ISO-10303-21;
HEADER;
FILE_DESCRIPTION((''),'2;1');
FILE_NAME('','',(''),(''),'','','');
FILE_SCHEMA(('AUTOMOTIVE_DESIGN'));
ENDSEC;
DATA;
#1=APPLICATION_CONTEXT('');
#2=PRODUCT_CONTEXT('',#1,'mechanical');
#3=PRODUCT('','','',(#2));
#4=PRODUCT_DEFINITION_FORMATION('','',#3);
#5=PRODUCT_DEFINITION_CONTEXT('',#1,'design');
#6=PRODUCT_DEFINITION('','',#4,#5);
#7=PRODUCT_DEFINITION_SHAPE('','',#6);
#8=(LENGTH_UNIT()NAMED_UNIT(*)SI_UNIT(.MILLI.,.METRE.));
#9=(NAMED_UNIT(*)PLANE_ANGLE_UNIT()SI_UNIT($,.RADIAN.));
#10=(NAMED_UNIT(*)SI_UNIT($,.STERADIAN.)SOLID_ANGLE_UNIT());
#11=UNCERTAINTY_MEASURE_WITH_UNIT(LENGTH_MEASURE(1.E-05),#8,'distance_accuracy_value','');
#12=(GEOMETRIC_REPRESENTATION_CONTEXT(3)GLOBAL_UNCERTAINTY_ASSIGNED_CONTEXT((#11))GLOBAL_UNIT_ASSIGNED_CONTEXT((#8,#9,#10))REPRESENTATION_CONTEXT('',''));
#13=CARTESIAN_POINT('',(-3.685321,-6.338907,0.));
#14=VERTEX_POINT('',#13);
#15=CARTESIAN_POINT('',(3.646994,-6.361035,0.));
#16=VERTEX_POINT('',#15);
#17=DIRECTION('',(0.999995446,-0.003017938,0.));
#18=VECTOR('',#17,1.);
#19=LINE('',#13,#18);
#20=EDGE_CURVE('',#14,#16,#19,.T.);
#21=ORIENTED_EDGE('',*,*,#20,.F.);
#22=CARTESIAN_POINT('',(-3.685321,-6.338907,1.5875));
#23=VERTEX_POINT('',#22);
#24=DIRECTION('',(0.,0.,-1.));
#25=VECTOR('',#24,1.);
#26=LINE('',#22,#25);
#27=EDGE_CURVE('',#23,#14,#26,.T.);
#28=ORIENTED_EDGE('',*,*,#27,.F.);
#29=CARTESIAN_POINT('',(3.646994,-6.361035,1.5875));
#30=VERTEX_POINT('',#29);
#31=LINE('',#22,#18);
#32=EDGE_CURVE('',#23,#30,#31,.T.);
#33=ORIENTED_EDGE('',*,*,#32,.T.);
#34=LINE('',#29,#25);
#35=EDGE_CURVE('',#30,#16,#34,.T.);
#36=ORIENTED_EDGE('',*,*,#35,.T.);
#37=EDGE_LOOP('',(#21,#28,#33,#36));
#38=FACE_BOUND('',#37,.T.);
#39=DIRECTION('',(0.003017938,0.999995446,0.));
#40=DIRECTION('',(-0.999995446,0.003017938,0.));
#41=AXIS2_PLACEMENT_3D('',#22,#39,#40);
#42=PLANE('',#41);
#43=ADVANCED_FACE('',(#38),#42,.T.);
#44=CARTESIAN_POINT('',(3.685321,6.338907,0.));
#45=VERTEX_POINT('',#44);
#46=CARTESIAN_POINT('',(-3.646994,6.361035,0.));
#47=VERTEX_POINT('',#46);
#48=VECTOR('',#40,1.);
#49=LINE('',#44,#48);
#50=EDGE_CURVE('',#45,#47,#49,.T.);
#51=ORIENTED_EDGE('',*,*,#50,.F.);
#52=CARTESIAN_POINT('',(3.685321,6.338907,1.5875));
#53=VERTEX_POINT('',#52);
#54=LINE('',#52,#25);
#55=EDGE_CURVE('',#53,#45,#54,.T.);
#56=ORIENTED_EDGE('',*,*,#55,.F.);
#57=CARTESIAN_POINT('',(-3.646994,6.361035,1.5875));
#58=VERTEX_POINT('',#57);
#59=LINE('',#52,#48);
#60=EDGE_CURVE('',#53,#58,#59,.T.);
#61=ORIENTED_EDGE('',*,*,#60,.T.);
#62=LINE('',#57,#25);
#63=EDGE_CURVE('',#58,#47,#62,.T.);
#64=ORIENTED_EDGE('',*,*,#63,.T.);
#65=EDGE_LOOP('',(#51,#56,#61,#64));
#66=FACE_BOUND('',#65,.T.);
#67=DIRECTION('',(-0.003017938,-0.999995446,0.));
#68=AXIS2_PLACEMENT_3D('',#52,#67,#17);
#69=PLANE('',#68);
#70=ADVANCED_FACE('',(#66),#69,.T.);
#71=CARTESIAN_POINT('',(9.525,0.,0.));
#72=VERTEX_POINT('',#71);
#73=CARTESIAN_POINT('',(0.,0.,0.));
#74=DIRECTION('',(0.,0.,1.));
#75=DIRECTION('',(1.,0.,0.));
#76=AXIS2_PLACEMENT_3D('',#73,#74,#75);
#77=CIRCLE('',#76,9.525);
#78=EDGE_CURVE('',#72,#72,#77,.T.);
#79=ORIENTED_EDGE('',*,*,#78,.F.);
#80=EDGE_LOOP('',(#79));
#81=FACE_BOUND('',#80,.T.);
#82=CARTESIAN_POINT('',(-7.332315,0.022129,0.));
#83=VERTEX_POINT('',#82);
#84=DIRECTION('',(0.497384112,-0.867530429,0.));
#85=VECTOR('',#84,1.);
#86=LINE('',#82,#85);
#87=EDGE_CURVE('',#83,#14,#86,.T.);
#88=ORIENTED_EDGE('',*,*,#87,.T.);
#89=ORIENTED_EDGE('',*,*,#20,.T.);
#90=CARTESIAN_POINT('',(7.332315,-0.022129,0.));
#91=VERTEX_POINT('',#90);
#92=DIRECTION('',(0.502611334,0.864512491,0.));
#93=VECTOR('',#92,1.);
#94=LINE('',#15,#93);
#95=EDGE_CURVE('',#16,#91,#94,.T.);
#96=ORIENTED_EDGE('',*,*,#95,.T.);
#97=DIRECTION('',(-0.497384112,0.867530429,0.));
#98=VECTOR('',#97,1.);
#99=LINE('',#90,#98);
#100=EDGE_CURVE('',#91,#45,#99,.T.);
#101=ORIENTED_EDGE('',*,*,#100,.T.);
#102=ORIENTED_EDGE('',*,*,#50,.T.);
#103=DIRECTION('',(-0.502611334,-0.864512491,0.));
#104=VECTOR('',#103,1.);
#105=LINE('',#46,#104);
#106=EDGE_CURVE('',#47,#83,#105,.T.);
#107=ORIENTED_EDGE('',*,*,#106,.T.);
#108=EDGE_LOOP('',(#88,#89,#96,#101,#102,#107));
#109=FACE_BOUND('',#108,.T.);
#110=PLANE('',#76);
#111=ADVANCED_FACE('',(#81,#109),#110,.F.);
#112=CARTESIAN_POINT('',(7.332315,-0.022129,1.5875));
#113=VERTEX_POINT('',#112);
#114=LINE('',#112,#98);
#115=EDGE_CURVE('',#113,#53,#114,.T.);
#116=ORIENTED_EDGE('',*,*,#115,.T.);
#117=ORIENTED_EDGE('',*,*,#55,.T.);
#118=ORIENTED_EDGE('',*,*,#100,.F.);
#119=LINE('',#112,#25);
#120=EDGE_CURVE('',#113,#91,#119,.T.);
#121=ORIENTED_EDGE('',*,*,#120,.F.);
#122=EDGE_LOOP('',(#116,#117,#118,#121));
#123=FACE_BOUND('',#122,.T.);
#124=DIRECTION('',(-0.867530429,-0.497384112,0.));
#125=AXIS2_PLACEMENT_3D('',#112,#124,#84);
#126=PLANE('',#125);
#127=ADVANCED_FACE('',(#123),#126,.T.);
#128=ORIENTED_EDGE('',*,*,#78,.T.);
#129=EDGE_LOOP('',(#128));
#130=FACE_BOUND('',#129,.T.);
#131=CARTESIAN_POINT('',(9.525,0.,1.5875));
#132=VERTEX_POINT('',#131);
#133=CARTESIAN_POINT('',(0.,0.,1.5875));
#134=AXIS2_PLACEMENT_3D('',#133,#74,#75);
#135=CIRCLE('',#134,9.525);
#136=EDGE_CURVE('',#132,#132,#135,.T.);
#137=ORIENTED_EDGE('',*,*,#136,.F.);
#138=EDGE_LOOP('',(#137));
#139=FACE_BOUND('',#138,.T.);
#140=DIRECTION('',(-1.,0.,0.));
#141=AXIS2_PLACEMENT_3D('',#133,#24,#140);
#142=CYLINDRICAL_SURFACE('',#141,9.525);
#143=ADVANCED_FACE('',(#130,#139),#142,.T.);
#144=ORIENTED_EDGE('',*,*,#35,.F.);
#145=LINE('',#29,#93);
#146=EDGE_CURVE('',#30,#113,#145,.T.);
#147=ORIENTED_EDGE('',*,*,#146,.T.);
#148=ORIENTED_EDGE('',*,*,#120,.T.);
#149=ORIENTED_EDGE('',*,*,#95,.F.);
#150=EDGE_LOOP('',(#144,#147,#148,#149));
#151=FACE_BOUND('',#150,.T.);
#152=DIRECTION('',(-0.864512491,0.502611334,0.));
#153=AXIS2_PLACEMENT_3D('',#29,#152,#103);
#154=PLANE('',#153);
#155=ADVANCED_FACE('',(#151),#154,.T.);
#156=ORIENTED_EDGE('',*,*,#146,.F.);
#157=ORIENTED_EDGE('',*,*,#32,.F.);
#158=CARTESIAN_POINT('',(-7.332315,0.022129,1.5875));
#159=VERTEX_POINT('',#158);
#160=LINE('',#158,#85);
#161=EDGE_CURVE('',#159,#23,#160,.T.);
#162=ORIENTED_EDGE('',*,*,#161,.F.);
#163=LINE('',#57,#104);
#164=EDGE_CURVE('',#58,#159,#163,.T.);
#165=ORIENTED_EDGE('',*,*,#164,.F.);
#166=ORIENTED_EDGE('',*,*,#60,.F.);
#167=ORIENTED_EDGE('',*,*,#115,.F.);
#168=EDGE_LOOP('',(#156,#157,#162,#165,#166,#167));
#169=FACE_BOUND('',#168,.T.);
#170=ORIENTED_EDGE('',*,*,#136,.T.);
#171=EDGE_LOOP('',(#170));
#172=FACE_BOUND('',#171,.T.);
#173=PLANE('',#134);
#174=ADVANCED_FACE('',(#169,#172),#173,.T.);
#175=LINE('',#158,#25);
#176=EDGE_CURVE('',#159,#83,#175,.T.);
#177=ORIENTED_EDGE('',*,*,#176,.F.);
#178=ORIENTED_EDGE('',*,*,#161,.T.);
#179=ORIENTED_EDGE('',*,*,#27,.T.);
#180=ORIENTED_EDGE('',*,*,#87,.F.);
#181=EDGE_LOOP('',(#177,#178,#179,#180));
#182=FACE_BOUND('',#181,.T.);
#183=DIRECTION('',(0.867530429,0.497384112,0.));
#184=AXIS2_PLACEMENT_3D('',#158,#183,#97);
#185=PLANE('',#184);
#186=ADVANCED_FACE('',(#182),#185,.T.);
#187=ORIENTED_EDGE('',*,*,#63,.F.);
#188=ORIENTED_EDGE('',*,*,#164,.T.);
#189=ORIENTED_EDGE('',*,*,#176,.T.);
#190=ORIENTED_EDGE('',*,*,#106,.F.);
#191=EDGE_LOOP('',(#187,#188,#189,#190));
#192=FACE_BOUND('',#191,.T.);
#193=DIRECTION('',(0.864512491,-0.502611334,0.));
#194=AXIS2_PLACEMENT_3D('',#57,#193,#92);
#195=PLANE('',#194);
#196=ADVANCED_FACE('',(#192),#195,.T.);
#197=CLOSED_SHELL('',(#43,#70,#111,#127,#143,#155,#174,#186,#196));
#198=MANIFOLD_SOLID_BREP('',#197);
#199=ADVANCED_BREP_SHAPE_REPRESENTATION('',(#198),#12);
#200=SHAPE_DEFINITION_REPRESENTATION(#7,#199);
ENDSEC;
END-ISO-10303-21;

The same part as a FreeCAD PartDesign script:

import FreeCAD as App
import Part
import Sketcher
from FreeCAD import Vector
Q = App.Units.Quantity


def add_polygon(sketch, points):
    """Adds a closed chain of lines whose ends are joined by coincident constraints."""
    first, n = sketch.GeometryCount, len(points)
    for a, b in zip(points, points[1:] + points[:1]):
        sketch.addGeometry(Part.LineSegment(App.Vector(*a, 0), App.Vector(*b, 0)), False)
    for i in range(n):
        sketch.addConstraint(Sketcher.Constraint("Coincident", first + i, 2, first + (i + 1) % n, 1))

doc = App.newDocument("Part")
params = doc.addObject("Spreadsheet::Sheet", "Params")
for row, (alias, value) in enumerate([
    ("sketch1_diameter", "0.75 in"),
    ("pad1_length", "0.0625 in"),
], start=1):
    params.set(f"A{row}", alias)
    params.set(f"B{row}", "=" + value)
    params.setAlias(f"B{row}", alias)

body = doc.addObject("PartDesign::Body", "Body")

# Sketch on XY plane
sketch1 = body.newObject("Sketcher::SketchObject", "Sketch")
sketch1.AttachmentSupport = (doc.getObject("XY_Plane"), [""])
sketch1.MapMode = "FlatFace"
sketch1.addGeometry(Part.Circle(Vector(0, 0, 0), Vector(0, 0, 1), 9.525), False)  # 0
add_polygon(sketch1, [(7.332315, -0.022129), (3.646994, -6.361035), (-3.685321, -6.338907), (-7.332315, 0.022129), (-3.646994, 6.361035), (3.685321, 6.338907)])  # lines 1-6
sketch1.addConstraint(Sketcher.Constraint("Coincident", 0, 3, -1, 1))
sketch1.addConstraint(Sketcher.Constraint("Diameter", 0, Q("0.75 in")))
sketch1.addConstraint(Sketcher.Constraint("Distance", 1, Q("7.332348 mm")))
sketch1.addConstraint(Sketcher.Constraint("Distance", 2, Q("7.332348 mm")))
sketch1.addConstraint(Sketcher.Constraint("Distance", 3, Q("7.332348 mm")))
sketch1.addConstraint(Sketcher.Constraint("Distance", 4, Q("7.332348 mm")))
sketch1.addConstraint(Sketcher.Constraint("Distance", 5, Q("7.332348 mm")))
sketch1.addConstraint(Sketcher.Constraint("Distance", 6, Q("7.332348 mm")))
sketch1.addConstraint(Sketcher.Constraint("DistanceX", 2, 2, -1, 1, Q("3.685321 mm")))
sketch1.addConstraint(Sketcher.Constraint("DistanceY", -1, 1, 3, 2, Q("0.022129 mm")))
sketch1.addConstraint(Sketcher.Constraint("DistanceX", -1, 1, 5, 2, Q("3.685321 mm")))
sketch1.addConstraint(Sketcher.Constraint("DistanceY", 6, 2, -1, 1, Q("0.022129 mm")))
sketch1.addConstraint(Sketcher.Constraint("DistanceY", 1, 2, 2, 2, Q("0.022129 mm")))
sketch1.addConstraint(Sketcher.Constraint("DistanceX", 3, 2, 1, 2, Q("10.979309 mm")))
sketch1.setExpression("Constraints[7]", "Params.sketch1_diameter")
pad1 = body.newObject("PartDesign::Pad", "Pad")
pad1.Profile = sketch1
pad1.setExpression("Length", "Params.pad1_length")

doc.recompute()
